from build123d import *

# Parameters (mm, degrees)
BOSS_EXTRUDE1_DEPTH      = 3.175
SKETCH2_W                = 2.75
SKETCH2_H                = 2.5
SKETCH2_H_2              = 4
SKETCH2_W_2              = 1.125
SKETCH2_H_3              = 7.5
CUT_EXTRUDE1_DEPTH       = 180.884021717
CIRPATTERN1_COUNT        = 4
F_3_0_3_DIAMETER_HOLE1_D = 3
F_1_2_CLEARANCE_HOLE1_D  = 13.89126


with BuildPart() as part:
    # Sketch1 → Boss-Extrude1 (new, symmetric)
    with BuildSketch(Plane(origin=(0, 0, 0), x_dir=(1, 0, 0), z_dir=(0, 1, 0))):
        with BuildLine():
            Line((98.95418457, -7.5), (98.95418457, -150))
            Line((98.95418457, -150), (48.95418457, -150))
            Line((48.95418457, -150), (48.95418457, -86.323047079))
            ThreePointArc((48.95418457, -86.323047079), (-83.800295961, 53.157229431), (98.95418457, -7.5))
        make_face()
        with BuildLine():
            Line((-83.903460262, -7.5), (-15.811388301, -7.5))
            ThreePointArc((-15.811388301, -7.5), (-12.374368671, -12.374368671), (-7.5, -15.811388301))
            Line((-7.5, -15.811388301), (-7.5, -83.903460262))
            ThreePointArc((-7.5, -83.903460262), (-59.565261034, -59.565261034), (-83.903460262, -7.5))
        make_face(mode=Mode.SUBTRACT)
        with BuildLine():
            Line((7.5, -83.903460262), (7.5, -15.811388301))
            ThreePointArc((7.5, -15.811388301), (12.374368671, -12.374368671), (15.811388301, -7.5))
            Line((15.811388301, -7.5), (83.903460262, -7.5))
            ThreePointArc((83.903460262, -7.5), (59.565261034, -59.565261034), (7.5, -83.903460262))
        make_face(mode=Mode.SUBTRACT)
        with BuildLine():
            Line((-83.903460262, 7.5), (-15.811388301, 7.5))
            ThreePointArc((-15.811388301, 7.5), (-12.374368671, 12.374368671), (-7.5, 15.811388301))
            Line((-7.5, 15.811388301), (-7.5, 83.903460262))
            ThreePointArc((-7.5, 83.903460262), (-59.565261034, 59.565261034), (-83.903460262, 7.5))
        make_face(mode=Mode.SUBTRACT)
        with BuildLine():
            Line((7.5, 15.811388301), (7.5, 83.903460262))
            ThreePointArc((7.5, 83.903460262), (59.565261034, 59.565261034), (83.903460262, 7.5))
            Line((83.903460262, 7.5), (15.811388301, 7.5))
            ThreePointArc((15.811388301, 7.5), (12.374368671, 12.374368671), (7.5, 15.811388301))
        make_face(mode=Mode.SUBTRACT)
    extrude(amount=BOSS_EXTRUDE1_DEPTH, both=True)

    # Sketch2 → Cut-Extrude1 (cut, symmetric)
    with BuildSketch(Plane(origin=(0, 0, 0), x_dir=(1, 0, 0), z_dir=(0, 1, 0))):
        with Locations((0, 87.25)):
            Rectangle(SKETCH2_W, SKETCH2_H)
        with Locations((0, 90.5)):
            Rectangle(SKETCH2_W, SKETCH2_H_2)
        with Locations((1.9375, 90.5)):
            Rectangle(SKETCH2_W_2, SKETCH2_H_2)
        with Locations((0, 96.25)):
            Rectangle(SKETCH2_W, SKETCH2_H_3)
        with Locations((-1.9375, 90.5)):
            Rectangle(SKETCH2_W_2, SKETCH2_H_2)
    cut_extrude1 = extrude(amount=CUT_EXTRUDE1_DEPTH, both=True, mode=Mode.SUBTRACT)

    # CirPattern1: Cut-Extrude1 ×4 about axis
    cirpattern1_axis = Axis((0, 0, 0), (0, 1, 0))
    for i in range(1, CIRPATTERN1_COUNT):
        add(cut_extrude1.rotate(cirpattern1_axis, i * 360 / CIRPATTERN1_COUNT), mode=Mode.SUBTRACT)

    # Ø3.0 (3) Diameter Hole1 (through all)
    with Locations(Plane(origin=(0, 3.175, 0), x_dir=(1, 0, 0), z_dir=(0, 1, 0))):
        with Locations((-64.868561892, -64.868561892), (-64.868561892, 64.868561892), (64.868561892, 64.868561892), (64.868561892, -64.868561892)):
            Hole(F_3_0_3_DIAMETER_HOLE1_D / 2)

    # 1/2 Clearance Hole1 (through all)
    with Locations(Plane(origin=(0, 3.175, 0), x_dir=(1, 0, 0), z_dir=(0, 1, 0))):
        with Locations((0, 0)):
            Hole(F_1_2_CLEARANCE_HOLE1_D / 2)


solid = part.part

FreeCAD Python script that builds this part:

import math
import FreeCAD as App
import Part
import Sketcher
from FreeCAD import Vector

doc = App.newDocument("Part")
body = doc.addObject("PartDesign::Body", "Body")

# Sketch on XZ plane
sketch1 = doc.addObject("Sketcher::SketchObject", "Sketch")
body.addObject(sketch1)
sketch1.AttachmentSupport = (doc.XZ_Plane, [""])
sketch1.MapMode = "FlatFace"
sketch1.addGeometry(Part.LineSegment(Vector(99, 150, 0), Vector(99, 8, 0)), False)
sketch1.addGeometry(Part.ArcOfCircle(Part.Circle(Vector(0, 0, 0), Vector(0, 0, 1), 99), math.radians(60), math.radians(364)), False)
sketch1.addGeometry(Part.LineSegment(Vector(49, 86, 0), Vector(49, 150, 0)), False)
sketch1.addGeometry(Part.LineSegment(Vector(49, 150, 0), Vector(99, 150, 0)), False)
sketch1.addGeometry(Part.LineSegment(Vector(8, 84, 0), Vector(8, 16, 0)), False)
sketch1.addGeometry(Part.ArcOfCircle(Part.Circle(Vector(0, 0, 0), Vector(0, 0, 1), 17), math.radians(25), math.radians(65)), False)
sketch1.addGeometry(Part.LineSegment(Vector(16, 8, 0), Vector(84, 8, 0)), False)
sketch1.addGeometry(Part.ArcOfCircle(Part.Circle(Vector(0, 0, 0), Vector(0, 0, 1), 84), math.radians(5), math.radians(85)), False)
sketch1.addGeometry(Part.LineSegment(Vector(-84, 8, 0), Vector(-16, 8, 0)), False)
sketch1.addGeometry(Part.ArcOfCircle(Part.Circle(Vector(0, 0, 0), Vector(0, 0, 1), 17), math.radians(115), math.radians(155)), False)
sketch1.addGeometry(Part.LineSegment(Vector(-8, 16, 0), Vector(-8, 84, 0)), False)
sketch1.addGeometry(Part.ArcOfCircle(Part.Circle(Vector(0, 0, 0), Vector(0, 0, 1), 84), math.radians(95), math.radians(175)), False)
sketch1.addGeometry(Part.LineSegment(Vector(8, -16, 0), Vector(8, -84, 0)), False)
sketch1.addGeometry(Part.ArcOfCircle(Part.Circle(Vector(0, 0, 0), Vector(0, 0, 1), 84), math.radians(-85), math.radians(-5)), False)
sketch1.addGeometry(Part.LineSegment(Vector(84, -8, 0), Vector(16, -8, 0)), False)
sketch1.addGeometry(Part.ArcOfCircle(Part.Circle(Vector(0, 0, 0), Vector(0, 0, 1), 17), math.radians(-65), math.radians(-25)), False)
sketch1.addGeometry(Part.ArcOfCircle(Part.Circle(Vector(0, 0, 0), Vector(0, 0, 1), 84), math.radians(-175), math.radians(-95)), False)
sketch1.addGeometry(Part.LineSegment(Vector(-8, -84, 0), Vector(-8, -16, 0)), False)
sketch1.addGeometry(Part.ArcOfCircle(Part.Circle(Vector(0, 0, 0), Vector(0, 0, 1), 17), math.radians(-155), math.radians(-115)), False)
sketch1.addGeometry(Part.LineSegment(Vector(-16, -8, 0), Vector(-84, -8, 0)), False)
sketch1.addConstraint(Sketcher.Constraint("Coincident", 0, 2, 1, 2))
sketch1.addConstraint(Sketcher.Constraint("Coincident", 1, 1, 2, 1))
sketch1.addConstraint(Sketcher.Constraint("Coincident", 2, 2, 3, 1))
sketch1.addConstraint(Sketcher.Constraint("Coincident", 3, 2, 0, 1))
sketch1.addConstraint(Sketcher.Constraint("Coincident", 4, 2, 5, 2))
sketch1.addConstraint(Sketcher.Constraint("Coincident", 5, 1, 6, 1))
sketch1.addConstraint(Sketcher.Constraint("Coincident", 6, 2, 7, 1))
sketch1.addConstraint(Sketcher.Constraint("Coincident", 7, 2, 4, 1))
sketch1.addConstraint(Sketcher.Constraint("Coincident", 8, 2, 9, 2))
sketch1.addConstraint(Sketcher.Constraint("Coincident", 9, 1, 10, 1))
sketch1.addConstraint(Sketcher.Constraint("Coincident", 10, 2, 11, 1))
sketch1.addConstraint(Sketcher.Constraint("Coincident", 11, 2, 8, 1))
sketch1.addConstraint(Sketcher.Constraint("Coincident", 12, 2, 13, 1))
sketch1.addConstraint(Sketcher.Constraint("Coincident", 13, 2, 14, 1))
sketch1.addConstraint(Sketcher.Constraint("Coincident", 14, 2, 15, 2))
sketch1.addConstraint(Sketcher.Constraint("Coincident", 15, 1, 12, 1))
sketch1.addConstraint(Sketcher.Constraint("Coincident", 16, 2, 17, 1))
sketch1.addConstraint(Sketcher.Constraint("Coincident", 17, 2, 18, 2))
sketch1.addConstraint(Sketcher.Constraint("Coincident", 18, 1, 19, 1))
sketch1.addConstraint(Sketcher.Constraint("Coincident", 19, 2, 16, 1))
sketch1.addConstraint(Sketcher.Constraint("Vertical", 0))
sketch1.addConstraint(Sketcher.Constraint("Vertical", 2))
sketch1.addConstraint(Sketcher.Constraint("Horizontal", 3))
sketch1.addConstraint(Sketcher.Constraint("Vertical", 4))
sketch1.addConstraint(Sketcher.Constraint("Horizontal", 6))
sketch1.addConstraint(Sketcher.Constraint("Horizontal", 8))
sketch1.addConstraint(Sketcher.Constraint("Vertical", 10))
sketch1.addConstraint(Sketcher.Constraint("Vertical", 12))
sketch1.addConstraint(Sketcher.Constraint("Horizontal", 14))
sketch1.addConstraint(Sketcher.Constraint("Vertical", 17))
sketch1.addConstraint(Sketcher.Constraint("Horizontal", 19))
sketch1.addConstraint(Sketcher.Constraint("Coincident", 1, 3, -1, 1))
sketch1.addConstraint(Sketcher.Constraint("Coincident", 5, 3, -1, 1))
sketch1.addConstraint(Sketcher.Constraint("Coincident", 7, 3, -1, 1))
sketch1.addConstraint(Sketcher.Constraint("Coincident", 9, 3, -1, 1))
sketch1.addConstraint(Sketcher.Constraint("Coincident", 11, 3, -1, 1))
sketch1.addConstraint(Sketcher.Constraint("Coincident", 13, 3, -1, 1))
sketch1.addConstraint(Sketcher.Constraint("Coincident", 15, 3, -1, 1))
sketch1.addConstraint(Sketcher.Constraint("Coincident", 16, 3, -1, 1))
sketch1.addConstraint(Sketcher.Constraint("Coincident", 18, 3, -1, 1))
sketch1.addConstraint(Sketcher.Constraint("Equal", 5, 9))
sketch1.addConstraint(Sketcher.Constraint("Equal", 7, 11))
sketch1.addConstraint(Sketcher.Constraint("Equal", 11, 13))
sketch1.addConstraint(Sketcher.Constraint("Equal", 9, 15))
sketch1.addConstraint(Sketcher.Constraint("Equal", 13, 16))
sketch1.addConstraint(Sketcher.Constraint("Equal", 15, 18))
sketch1.addConstraint(Sketcher.Constraint("Horizontal", 0, 2, 5, 1))
sketch1.addConstraint(Sketcher.Constraint("Horizontal", 6, 2, 8, 2))
sketch1.addConstraint(Sketcher.Constraint("Horizontal", 4, 2, 9, 1))
sketch1.addConstraint(Sketcher.Constraint("Horizontal", 12, 2, 16, 2))
sketch1.addConstraint(Sketcher.Constraint("Horizontal", 14, 2, 18, 1))
sketch1.addConstraint(Sketcher.Constraint("Vertical", 7, 2, 12, 2))
sketch1.addConstraint(Sketcher.Constraint("Vertical", 6, 2, 13, 2))
sketch1.addConstraint(Sketcher.Constraint("Equal", 19, 4))
sketch1.addConstraint(Sketcher.Constraint("Radius", 5, 17.5))
sketch1.addConstraint(Sketcher.Constraint("DistanceX", 3, 1, 3, 2, 50.0))
sketch1.addConstraint(Sketcher.Constraint("DistanceY", 0, 2, 0, 1, 142.5))
sketch1.addConstraint(Sketcher.Constraint("DistanceY", -1, 1, 2, 2, 150.0))
sketch1.addConstraint(Sketcher.Constraint("Radius", 1, 99.238))
sketch1.addConstraint(Sketcher.Constraint("Radius", 7, 84.238))
pad1 = doc.addObject("PartDesign::Pad", "Pad")
body.addObject(pad1)
pad1.Profile = sketch1
pad1.Length = 6.35
pad1.Midplane = True

# Sketch on XZ plane
sketch2 = doc.addObject("Sketcher::SketchObject", "Sketch001")
body.addObject(sketch2)
sketch2.AttachmentSupport = (doc.XZ_Plane, [""])
sketch2.MapMode = "FlatFace"
sketch2.addGeometry(Part.LineSegment(Vector(-1.4, -86, 0), Vector(1.4, -86, 0)), False)
sketch2.addGeometry(Part.LineSegment(Vector(1.4, -86, 0), Vector(1.4, -88.5, 0)), False)
sketch2.addGeometry(Part.LineSegment(Vector(1.4, -88.5, 0), Vector(2.5, -88.5, 0)), False)
sketch2.addGeometry(Part.LineSegment(Vector(2.5, -88.5, 0), Vector(2.5, -92.5, 0)), False)
sketch2.addGeometry(Part.LineSegment(Vector(2.5, -92.5, 0), Vector(1.4, -92.5, 0)), False)
sketch2.addGeometry(Part.LineSegment(Vector(1.4, -92.5, 0), Vector(1.4, -100, 0)), False)
sketch2.addGeometry(Part.LineSegment(Vector(1.4, -100, 0), Vector(-1.4, -100, 0)), False)
sketch2.addGeometry(Part.LineSegment(Vector(-1.4, -100, 0), Vector(-1.4, -92.5, 0)), False)
sketch2.addGeometry(Part.LineSegment(Vector(-1.4, -92.5, 0), Vector(-2.5, -92.5, 0)), False)
sketch2.addGeometry(Part.LineSegment(Vector(-2.5, -92.5, 0), Vector(-2.5, -88.5, 0)), False)
sketch2.addGeometry(Part.LineSegment(Vector(-2.5, -88.5, 0), Vector(-1.4, -88.5, 0)), False)
sketch2.addGeometry(Part.LineSegment(Vector(-1.4, -88.5, 0), Vector(-1.4, -86, 0)), False)
sketch2.addConstraint(Sketcher.Constraint("Coincident", 0, 2, 1, 1))
sketch2.addConstraint(Sketcher.Constraint("Coincident", 1, 2, 2, 1))
sketch2.addConstraint(Sketcher.Constraint("Coincident", 2, 2, 3, 1))
sketch2.addConstraint(Sketcher.Constraint("Coincident", 3, 2, 4, 1))
sketch2.addConstraint(Sketcher.Constraint("Coincident", 4, 2, 5, 1))
sketch2.addConstraint(Sketcher.Constraint("Coincident", 5, 2, 6, 1))
sketch2.addConstraint(Sketcher.Constraint("Coincident", 6, 2, 7, 1))
sketch2.addConstraint(Sketcher.Constraint("Coincident", 7, 2, 8, 1))
sketch2.addConstraint(Sketcher.Constraint("Coincident", 8, 2, 9, 1))
sketch2.addConstraint(Sketcher.Constraint("Coincident", 9, 2, 10, 1))
sketch2.addConstraint(Sketcher.Constraint("Coincident", 10, 2, 11, 1))
sketch2.addConstraint(Sketcher.Constraint("Coincident", 11, 2, 0, 1))
sketch2.addConstraint(Sketcher.Constraint("Horizontal", 0))
sketch2.addConstraint(Sketcher.Constraint("Vertical", 1))
sketch2.addConstraint(Sketcher.Constraint("Horizontal", 2))
sketch2.addConstraint(Sketcher.Constraint("Vertical", 3))
sketch2.addConstraint(Sketcher.Constraint("Horizontal", 4))
sketch2.addConstraint(Sketcher.Constraint("Vertical", 5))
sketch2.addConstraint(Sketcher.Constraint("Horizontal", 6))
sketch2.addConstraint(Sketcher.Constraint("Vertical", 7))
sketch2.addConstraint(Sketcher.Constraint("Horizontal", 8))
sketch2.addConstraint(Sketcher.Constraint("Vertical", 9))
sketch2.addConstraint(Sketcher.Constraint("Horizontal", 10))
sketch2.addConstraint(Sketcher.Constraint("Vertical", 11))
sketch2.addConstraint(Sketcher.Constraint("Symmetric", 4, 2, 7, 2, -2))
sketch2.addConstraint(Sketcher.Constraint("Symmetric", 2, 2, 9, 2, -2))
sketch2.addConstraint(Sketcher.Constraint("Vertical", 1, 2, 4, 2))
sketch2.addConstraint(Sketcher.Constraint("Vertical", 7, 2, 10, 2))
sketch2.addConstraint(Sketcher.Constraint("DistanceY", 3, 2, 3, 1, 4.0))
sketch2.addConstraint(Sketcher.Constraint("DistanceY", 1, 2, 1, 1, 2.5))
sketch2.addConstraint(Sketcher.Constraint("DistanceY", 5, 2, 5, 1, 7.5))
sketch2.addConstraint(Sketcher.Constraint("DistanceY", 0, 2, -1, 1, 86.0))
sketch2.addConstraint(Sketcher.Constraint("DistanceX", 8, 2, 3, 2, 5.0))
sketch2.addConstraint(Sketcher.Constraint("DistanceX", 0, 1, 0, 2, 2.75))
pocket1 = doc.addObject("PartDesign::Pocket", "Pocket")
body.addObject(pocket1)
pocket1.Profile = sketch2
pocket1.Length = 361.768043
pocket1.Midplane = True
doc.recompute()

polarpattern = doc.addObject("PartDesign::PolarPattern", "PolarPattern")
body.addObject(polarpattern)
polarpattern.Originals = [pocket1]
polarpattern.Axis = (doc.Y_Axis, [""])
polarpattern.Angle = 360
polarpattern.Occurrences = 4
body.Tip = polarpattern

# Sketch on XZ plane
sketch3 = doc.addObject("Sketcher::SketchObject", "Sketch002")
body.addObject(sketch3)
sketch3.AttachmentSupport = (doc.XZ_Plane, [""])
sketch3.MapMode = "FlatFace"
sketch3.AttachmentOffset = App.Placement(Vector(0, 0, -3.175), App.Rotation())
sketch3.addGeometry(Part.Circle(Vector(-64.9, 64.9, 0), Vector(0, 0, 1), 1.5), False)
sketch3.addGeometry(Part.Circle(Vector(-64.9, -64.9, 0), Vector(0, 0, 1), 1.5), False)
sketch3.addGeometry(Part.Circle(Vector(64.9, -64.9, 0), Vector(0, 0, 1), 1.5), False)
sketch3.addGeometry(Part.Circle(Vector(64.9, 64.9, 0), Vector(0, 0, 1), 1.5), False)
sketch3.addConstraint(Sketcher.Constraint("Equal", 0, 1))
sketch3.addConstraint(Sketcher.Constraint("Equal", 1, 2))
sketch3.addConstraint(Sketcher.Constraint("Equal", 2, 3))
sketch3.addConstraint(Sketcher.Constraint("Symmetric", 0, 3, 2, 3, -1, 1))
sketch3.addConstraint(Sketcher.Constraint("Symmetric", 1, 3, 3, 3, -1, 1))
sketch3.addConstraint(Sketcher.Constraint("Symmetric", 1, 3, 2, 3, -2))
sketch3.addConstraint(Sketcher.Constraint("Diameter", 0, 3.0))
sketch3.addConstraint(Sketcher.Constraint("DistanceX", 0, 3, -1, 1, 64.868562))
sketch3.addConstraint(Sketcher.Constraint("DistanceY", -1, 1, 0, 3, 64.868562))
doc.recompute()
hole = doc.addObject("PartDesign::Hole", "Hole")
body.addObject(hole)
hole.Profile = sketch3
hole.ThreadType = "None"
hole.Diameter = 3
hole.DepthType = "ThroughAll"
hole.Reversed = True

# Sketch on XZ plane
sketch4 = doc.addObject("Sketcher::SketchObject", "Sketch003")
body.addObject(sketch4)
sketch4.AttachmentSupport = (doc.XZ_Plane, [""])
sketch4.MapMode = "FlatFace"
sketch4.AttachmentOffset = App.Placement(Vector(0, 0, -3.175), App.Rotation())
sketch4.addGeometry(Part.Circle(Vector(0, 0, 0), Vector(0, 0, 1), 7), False)
sketch4.addConstraint(Sketcher.Constraint("Coincident", 0, 3, -1, 1))
sketch4.addConstraint(Sketcher.Constraint("Diameter", 0, 13.89126))
doc.recompute()
hole2 = doc.addObject("PartDesign::Hole", "Hole001")
body.addObject(hole2)
hole2.Profile = sketch4
hole2.ThreadType = "None"
hole2.Diameter = 13.89126
hole2.DepthType = "ThroughAll"
hole2.Reversed = True

doc.recompute()
